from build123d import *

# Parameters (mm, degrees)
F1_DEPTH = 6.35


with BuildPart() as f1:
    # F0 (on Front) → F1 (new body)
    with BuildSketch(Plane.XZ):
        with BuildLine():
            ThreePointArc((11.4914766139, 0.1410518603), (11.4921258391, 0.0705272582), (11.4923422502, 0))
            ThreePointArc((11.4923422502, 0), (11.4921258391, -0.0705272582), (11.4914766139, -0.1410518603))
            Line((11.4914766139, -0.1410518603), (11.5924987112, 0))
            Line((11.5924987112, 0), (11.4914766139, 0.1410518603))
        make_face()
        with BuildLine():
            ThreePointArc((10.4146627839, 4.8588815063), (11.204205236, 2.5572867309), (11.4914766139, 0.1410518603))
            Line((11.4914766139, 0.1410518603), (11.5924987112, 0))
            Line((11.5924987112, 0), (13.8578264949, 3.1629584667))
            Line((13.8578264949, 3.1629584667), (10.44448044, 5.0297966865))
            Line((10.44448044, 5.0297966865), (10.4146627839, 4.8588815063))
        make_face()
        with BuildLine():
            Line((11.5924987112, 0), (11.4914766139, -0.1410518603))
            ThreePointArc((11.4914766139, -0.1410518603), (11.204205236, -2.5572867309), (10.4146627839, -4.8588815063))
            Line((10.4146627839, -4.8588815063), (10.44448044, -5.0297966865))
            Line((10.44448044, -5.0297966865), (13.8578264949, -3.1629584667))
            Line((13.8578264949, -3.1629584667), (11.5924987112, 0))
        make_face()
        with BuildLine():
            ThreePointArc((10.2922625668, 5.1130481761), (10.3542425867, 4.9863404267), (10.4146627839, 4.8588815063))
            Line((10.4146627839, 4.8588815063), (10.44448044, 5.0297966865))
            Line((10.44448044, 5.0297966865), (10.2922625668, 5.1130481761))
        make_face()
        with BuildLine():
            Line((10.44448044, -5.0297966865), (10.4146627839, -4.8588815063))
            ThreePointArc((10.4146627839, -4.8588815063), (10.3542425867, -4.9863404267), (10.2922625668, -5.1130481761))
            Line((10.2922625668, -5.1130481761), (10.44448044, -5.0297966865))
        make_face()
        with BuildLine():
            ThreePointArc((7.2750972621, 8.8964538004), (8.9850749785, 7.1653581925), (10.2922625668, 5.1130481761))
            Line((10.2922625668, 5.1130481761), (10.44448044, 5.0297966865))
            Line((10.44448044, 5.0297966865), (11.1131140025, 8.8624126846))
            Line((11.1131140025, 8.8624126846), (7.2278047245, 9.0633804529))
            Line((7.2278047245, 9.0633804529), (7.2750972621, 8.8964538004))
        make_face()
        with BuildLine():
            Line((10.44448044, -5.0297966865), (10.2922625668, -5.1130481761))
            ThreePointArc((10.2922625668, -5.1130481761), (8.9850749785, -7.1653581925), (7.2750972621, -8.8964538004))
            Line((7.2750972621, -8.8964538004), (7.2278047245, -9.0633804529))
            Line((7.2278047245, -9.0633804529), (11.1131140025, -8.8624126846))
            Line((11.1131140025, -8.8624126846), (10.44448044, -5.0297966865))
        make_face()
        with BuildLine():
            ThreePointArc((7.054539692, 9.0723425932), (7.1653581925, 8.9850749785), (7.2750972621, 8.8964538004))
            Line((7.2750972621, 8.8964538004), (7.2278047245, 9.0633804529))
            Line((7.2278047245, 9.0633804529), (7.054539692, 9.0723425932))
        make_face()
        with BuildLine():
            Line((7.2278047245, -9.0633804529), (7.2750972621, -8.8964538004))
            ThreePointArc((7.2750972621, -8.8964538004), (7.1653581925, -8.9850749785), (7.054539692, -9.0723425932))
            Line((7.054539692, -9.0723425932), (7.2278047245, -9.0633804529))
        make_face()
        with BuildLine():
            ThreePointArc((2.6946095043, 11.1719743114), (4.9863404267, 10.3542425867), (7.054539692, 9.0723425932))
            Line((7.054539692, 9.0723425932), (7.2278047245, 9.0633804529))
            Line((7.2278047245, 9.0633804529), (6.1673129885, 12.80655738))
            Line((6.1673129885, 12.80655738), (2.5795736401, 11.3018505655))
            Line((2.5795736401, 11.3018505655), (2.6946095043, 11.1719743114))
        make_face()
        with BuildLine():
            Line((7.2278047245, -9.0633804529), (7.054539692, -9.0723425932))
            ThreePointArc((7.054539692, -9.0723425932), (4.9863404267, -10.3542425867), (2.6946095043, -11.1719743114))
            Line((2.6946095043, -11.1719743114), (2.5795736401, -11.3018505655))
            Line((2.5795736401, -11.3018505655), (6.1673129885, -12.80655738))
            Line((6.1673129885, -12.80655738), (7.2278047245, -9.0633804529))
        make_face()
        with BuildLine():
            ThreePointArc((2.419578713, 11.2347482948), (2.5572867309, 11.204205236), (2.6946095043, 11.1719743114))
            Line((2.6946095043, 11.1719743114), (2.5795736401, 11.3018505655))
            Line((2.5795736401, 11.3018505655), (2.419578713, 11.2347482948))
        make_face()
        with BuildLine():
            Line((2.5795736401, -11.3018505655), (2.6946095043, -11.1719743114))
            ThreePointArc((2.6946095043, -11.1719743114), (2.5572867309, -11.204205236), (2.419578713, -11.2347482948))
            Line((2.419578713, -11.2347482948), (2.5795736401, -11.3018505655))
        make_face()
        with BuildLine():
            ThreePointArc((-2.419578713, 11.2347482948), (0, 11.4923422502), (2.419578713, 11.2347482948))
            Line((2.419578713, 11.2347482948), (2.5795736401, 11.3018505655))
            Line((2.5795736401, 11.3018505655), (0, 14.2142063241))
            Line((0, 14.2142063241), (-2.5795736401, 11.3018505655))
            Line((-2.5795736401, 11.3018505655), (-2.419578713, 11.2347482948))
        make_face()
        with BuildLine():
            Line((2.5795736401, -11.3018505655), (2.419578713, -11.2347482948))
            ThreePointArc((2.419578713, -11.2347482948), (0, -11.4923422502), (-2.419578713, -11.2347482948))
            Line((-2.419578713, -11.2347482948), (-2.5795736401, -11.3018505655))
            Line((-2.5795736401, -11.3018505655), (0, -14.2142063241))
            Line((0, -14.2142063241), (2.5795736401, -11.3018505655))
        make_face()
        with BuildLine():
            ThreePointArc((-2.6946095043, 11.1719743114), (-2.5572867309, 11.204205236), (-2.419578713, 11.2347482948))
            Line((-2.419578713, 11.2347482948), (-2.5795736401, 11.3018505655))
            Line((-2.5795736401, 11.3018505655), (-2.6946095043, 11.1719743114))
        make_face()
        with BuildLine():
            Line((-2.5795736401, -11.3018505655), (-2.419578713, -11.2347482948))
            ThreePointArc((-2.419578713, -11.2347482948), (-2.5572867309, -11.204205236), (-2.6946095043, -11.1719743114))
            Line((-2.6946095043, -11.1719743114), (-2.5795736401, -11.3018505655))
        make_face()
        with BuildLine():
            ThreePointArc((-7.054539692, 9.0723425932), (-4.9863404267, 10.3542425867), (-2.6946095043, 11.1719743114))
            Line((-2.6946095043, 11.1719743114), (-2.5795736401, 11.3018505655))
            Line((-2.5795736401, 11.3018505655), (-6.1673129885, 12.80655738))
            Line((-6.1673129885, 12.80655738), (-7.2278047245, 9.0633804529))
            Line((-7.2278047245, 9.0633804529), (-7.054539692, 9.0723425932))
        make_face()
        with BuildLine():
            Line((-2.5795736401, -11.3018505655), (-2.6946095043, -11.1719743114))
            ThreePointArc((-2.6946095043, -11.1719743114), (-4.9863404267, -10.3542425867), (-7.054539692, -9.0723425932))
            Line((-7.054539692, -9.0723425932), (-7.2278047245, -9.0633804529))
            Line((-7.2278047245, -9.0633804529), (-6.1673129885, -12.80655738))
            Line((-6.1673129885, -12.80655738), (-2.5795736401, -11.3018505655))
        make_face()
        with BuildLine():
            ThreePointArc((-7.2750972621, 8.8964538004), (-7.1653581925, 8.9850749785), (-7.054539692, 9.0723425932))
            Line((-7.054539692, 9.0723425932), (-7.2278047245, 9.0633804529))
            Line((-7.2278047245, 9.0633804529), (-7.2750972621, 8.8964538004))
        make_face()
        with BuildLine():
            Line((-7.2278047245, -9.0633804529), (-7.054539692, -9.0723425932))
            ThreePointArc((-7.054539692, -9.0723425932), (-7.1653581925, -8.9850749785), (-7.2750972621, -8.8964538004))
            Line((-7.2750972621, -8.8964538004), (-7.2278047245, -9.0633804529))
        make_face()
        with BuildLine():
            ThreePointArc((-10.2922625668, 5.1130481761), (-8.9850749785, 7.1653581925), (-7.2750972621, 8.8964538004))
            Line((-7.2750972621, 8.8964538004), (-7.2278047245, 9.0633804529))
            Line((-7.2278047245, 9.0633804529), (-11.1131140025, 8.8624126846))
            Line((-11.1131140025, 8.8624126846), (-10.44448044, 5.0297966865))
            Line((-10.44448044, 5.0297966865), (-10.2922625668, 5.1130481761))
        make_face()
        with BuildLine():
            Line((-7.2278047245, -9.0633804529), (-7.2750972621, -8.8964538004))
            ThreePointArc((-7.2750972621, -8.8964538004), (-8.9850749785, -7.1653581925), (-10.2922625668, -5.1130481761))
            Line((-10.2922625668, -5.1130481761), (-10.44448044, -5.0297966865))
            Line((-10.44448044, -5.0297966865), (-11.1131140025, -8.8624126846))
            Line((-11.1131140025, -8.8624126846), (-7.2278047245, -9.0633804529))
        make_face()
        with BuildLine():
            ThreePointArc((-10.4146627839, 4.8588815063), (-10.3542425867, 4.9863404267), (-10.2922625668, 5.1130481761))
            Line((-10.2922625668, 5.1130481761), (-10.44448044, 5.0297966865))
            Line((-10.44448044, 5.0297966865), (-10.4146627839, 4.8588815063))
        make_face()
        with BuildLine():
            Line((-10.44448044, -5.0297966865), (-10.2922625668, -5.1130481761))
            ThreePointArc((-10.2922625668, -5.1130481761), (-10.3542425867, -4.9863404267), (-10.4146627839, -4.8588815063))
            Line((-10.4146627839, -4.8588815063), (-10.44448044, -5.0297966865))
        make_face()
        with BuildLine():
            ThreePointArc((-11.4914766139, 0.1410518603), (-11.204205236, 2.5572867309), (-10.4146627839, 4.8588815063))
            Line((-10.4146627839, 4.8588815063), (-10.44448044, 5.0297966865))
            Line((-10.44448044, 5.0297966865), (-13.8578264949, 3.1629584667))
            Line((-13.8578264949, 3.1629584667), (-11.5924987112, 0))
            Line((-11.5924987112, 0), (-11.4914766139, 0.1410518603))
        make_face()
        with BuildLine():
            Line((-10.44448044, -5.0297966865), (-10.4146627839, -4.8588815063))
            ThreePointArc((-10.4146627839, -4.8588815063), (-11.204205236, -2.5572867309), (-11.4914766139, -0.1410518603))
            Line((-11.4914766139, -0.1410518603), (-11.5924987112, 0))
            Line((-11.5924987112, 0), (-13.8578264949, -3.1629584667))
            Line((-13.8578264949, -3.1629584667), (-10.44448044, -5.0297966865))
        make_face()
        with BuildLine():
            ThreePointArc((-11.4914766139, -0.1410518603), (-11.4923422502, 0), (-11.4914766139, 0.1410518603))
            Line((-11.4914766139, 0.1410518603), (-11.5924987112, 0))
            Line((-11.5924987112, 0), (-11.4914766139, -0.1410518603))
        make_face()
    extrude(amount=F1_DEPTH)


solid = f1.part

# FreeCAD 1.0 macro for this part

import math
import FreeCAD as App
import Part
import Sketcher

V = App.Vector
Q = App.Units.Quantity


def add_polygon(sketch, points):
    """Adds a closed chain of lines whose ends are joined by coincident constraints."""
    first, n = sketch.GeometryCount, len(points)
    for a, b in zip(points, points[1:] + points[:1]):
        sketch.addGeometry(Part.LineSegment(App.Vector(*a, 0), App.Vector(*b, 0)), False)
    for i in range(n):
        sketch.addConstraint(Sketcher.Constraint("Coincident", first + i, 2, first + (i + 1) % n, 1))

doc = App.newDocument("Part")
body = doc.addObject("PartDesign::Body", "Body")

# Sketch on XZ plane
sketch1 = doc.addObject("Sketcher::SketchObject", "Sketch")
body.addObject(sketch1)
sketch1.AttachmentSupport = (doc.XZ_Plane, [""])
sketch1.MapMode = "FlatFace"
add_polygon(sketch1, [(-13.86, 3.16), (-11.59, 0), (-13.86, -3.16), (-10.44, -5.03), (-11.11, -8.86), (-7.23, -9.06), (-6.17, -12.81), (-2.58, -11.3), (0, -14.21), (2.58, -11.3), (6.17, -12.81), (7.23, -9.06), (11.11, -8.86), (10.44, -5.03), (13.86, -3.16), (11.59, 0), (13.86, 3.16), (10.44, 5.03), (11.11, 8.86), (7.23, 9.06), (6.17, 12.81), (2.58, 11.3), (0, 14.21), (-2.58, 11.3), (-6.17, 12.81), (-7.23, 9.06), (-11.11, 8.86), (-10.44, 5.03)])  # lines 0-27
sketch1.addGeometry(Part.ArcOfCircle(Part.Circle(V(0, 0, 0), V(0, 0, 1), 11.49), math.radians(-179), math.radians(-155)), False)  # 28
sketch1.addGeometry(Part.ArcOfCircle(Part.Circle(V(0, 0, 0), V(0, 0, 1), 11.49), math.radians(179.3), math.radians(180.7)), False)  # 29
sketch1.addGeometry(Part.ArcOfCircle(Part.Circle(V(0, 0, 0), V(0, 0, 1), 11.49), math.radians(155), math.radians(179)), False)  # 30
sketch1.addGeometry(Part.ArcOfCircle(Part.Circle(V(0, 0, 0), V(0, 0, 1), 11.49), math.radians(153.58), math.radians(154.99)), False)  # 31
sketch1.addGeometry(Part.ArcOfCircle(Part.Circle(V(0, 0, 0), V(0, 0, 1), 11.49), math.radians(129), math.radians(154)), False)  # 32
sketch1.addGeometry(Part.ArcOfCircle(Part.Circle(V(0, 0, 0), V(0, 0, 1), 11.49), math.radians(127.87), math.radians(129.27)), False)  # 33
sketch1.addGeometry(Part.ArcOfCircle(Part.Circle(V(0, 0, 0), V(0, 0, 1), 11.49), math.radians(104), math.radians(128)), False)  # 34
sketch1.addGeometry(Part.ArcOfCircle(Part.Circle(V(0, 0, 0), V(0, 0, 1), 11.49), math.radians(102.15), math.radians(103.56)), False)  # 35
sketch1.addGeometry(Part.ArcOfCircle(Part.Circle(V(0, 0, 0), V(0, 0, 1), 11.49), math.radians(78), math.radians(102)), False)  # 36
sketch1.addGeometry(Part.ArcOfCircle(Part.Circle(V(0, 0, 0), V(0, 0, 1), 11.49), math.radians(76.44), math.radians(77.85)), False)  # 37
sketch1.addGeometry(Part.ArcOfCircle(Part.Circle(V(0, 0, 0), V(0, 0, 1), 11.49), math.radians(52), math.radians(76)), False)  # 38
sketch1.addGeometry(Part.ArcOfCircle(Part.Circle(V(0, 0, 0), V(0, 0, 1), 11.49), math.radians(50.73), math.radians(52.13)), False)  # 39
sketch1.addGeometry(Part.ArcOfCircle(Part.Circle(V(0, 0, 0), V(0, 0, 1), 11.49), math.radians(26), math.radians(51)), False)  # 40
sketch1.addGeometry(Part.ArcOfCircle(Part.Circle(V(0, 0, 0), V(0, 0, 1), 11.49), math.radians(25.01), math.radians(26.42)), False)  # 41
sketch1.addGeometry(Part.ArcOfCircle(Part.Circle(V(0, 0, 0), V(0, 0, 1), 11.49), math.radians(1), math.radians(25)), False)  # 42
sketch1.addGeometry(Part.ArcOfCircle(Part.Circle(V(0, 0, 0), V(0, 0, 1), 11.49), math.radians(0), math.radians(0.7)), False)  # 43
sketch1.addGeometry(Part.ArcOfCircle(Part.Circle(V(0, 0, 0), V(0, 0, 1), 11.49), math.radians(-0.7), math.radians(0)), False)  # 44
sketch1.addGeometry(Part.ArcOfCircle(Part.Circle(V(0, 0, 0), V(0, 0, 1), 11.49), math.radians(-25), math.radians(-1)), False)  # 45
sketch1.addGeometry(Part.ArcOfCircle(Part.Circle(V(0, 0, 0), V(0, 0, 1), 11.49), math.radians(-26.42), math.radians(-25.01)), False)  # 46
sketch1.addGeometry(Part.ArcOfCircle(Part.Circle(V(0, 0, 0), V(0, 0, 1), 11.49), math.radians(-51), math.radians(-26)), False)  # 47
sketch1.addGeometry(Part.ArcOfCircle(Part.Circle(V(0, 0, 0), V(0, 0, 1), 11.49), math.radians(-52.13), math.radians(-50.73)), False)  # 48
sketch1.addGeometry(Part.ArcOfCircle(Part.Circle(V(0, 0, 0), V(0, 0, 1), 11.49), math.radians(-76), math.radians(-52)), False)  # 49
sketch1.addGeometry(Part.ArcOfCircle(Part.Circle(V(0, 0, 0), V(0, 0, 1), 11.49), math.radians(-77.85), math.radians(-76.44)), False)  # 50
sketch1.addGeometry(Part.ArcOfCircle(Part.Circle(V(0, 0, 0), V(0, 0, 1), 11.49), math.radians(-102), math.radians(-78)), False)  # 51
sketch1.addGeometry(Part.ArcOfCircle(Part.Circle(V(0, 0, 0), V(0, 0, 1), 11.49), math.radians(-103.56), math.radians(-102.15)), False)  # 52
sketch1.addGeometry(Part.ArcOfCircle(Part.Circle(V(0, 0, 0), V(0, 0, 1), 11.49), math.radians(-128), math.radians(-104)), False)  # 53
sketch1.addGeometry(Part.ArcOfCircle(Part.Circle(V(0, 0, 0), V(0, 0, 1), 11.49), math.radians(-129.27), math.radians(-127.87)), False)  # 54
sketch1.addGeometry(Part.ArcOfCircle(Part.Circle(V(0, 0, 0), V(0, 0, 1), 11.49), math.radians(-154), math.radians(-129)), False)  # 55
sketch1.addGeometry(Part.ArcOfCircle(Part.Circle(V(0, 0, 0), V(0, 0, 1), 11.49), math.radians(-154.99), math.radians(-153.58)), False)  # 56
sketch1.addConstraint(Sketcher.Constraint("Tangent", 28, 1, 29, 2))
sketch1.addConstraint(Sketcher.Constraint("Tangent", 29, 1, 30, 2))
sketch1.addConstraint(Sketcher.Constraint("Tangent", 30, 1, 31, 2))
sketch1.addConstraint(Sketcher.Constraint("Tangent", 31, 1, 32, 2))
sketch1.addConstraint(Sketcher.Constraint("Tangent", 32, 1, 33, 2))
sketch1.addConstraint(Sketcher.Constraint("Tangent", 33, 1, 34, 2))
sketch1.addConstraint(Sketcher.Constraint("Tangent", 34, 1, 35, 2))
sketch1.addConstraint(Sketcher.Constraint("Tangent", 35, 1, 36, 2))
sketch1.addConstraint(Sketcher.Constraint("Tangent", 36, 1, 37, 2))
sketch1.addConstraint(Sketcher.Constraint("Tangent", 37, 1, 38, 2))
sketch1.addConstraint(Sketcher.Constraint("Tangent", 38, 1, 39, 2))
sketch1.addConstraint(Sketcher.Constraint("Tangent", 39, 1, 40, 2))
sketch1.addConstraint(Sketcher.Constraint("Tangent", 40, 1, 41, 2))
sketch1.addConstraint(Sketcher.Constraint("Tangent", 41, 1, 42, 2))
sketch1.addConstraint(Sketcher.Constraint("Tangent", 42, 1, 43, 2))
sketch1.addConstraint(Sketcher.Constraint("Tangent", 43, 1, 44, 2))
sketch1.addConstraint(Sketcher.Constraint("Tangent", 44, 1, 45, 2))
sketch1.addConstraint(Sketcher.Constraint("Tangent", 45, 1, 46, 2))
sketch1.addConstraint(Sketcher.Constraint("Tangent", 46, 1, 47, 2))
sketch1.addConstraint(Sketcher.Constraint("Tangent", 47, 1, 48, 2))
sketch1.addConstraint(Sketcher.Constraint("Tangent", 48, 1, 49, 2))
sketch1.addConstraint(Sketcher.Constraint("Tangent", 49, 1, 50, 2))
sketch1.addConstraint(Sketcher.Constraint("Tangent", 50, 1, 51, 2))
sketch1.addConstraint(Sketcher.Constraint("Tangent", 51, 1, 52, 2))
sketch1.addConstraint(Sketcher.Constraint("Tangent", 52, 1, 53, 2))
sketch1.addConstraint(Sketcher.Constraint("Tangent", 53, 1, 54, 2))
sketch1.addConstraint(Sketcher.Constraint("Tangent", 54, 1, 55, 2))
sketch1.addConstraint(Sketcher.Constraint("Tangent", 55, 1, 56, 2))
sketch1.addConstraint(Sketcher.Constraint("Tangent", 56, 1, 28, 2))
sketch1.addConstraint(Sketcher.Constraint("Coincident", 28, 3, -1, 1))
sketch1.addConstraint(Sketcher.Constraint("Coincident", 30, 3, -1, 1))
sketch1.addConstraint(Sketcher.Constraint("Coincident", 32, 3, -1, 1))
sketch1.addConstraint(Sketcher.Constraint("Coincident", 34, 3, -1, 1))
sketch1.addConstraint(Sketcher.Constraint("Coincident", 36, 3, -1, 1))
sketch1.addConstraint(Sketcher.Constraint("Coincident", 38, 3, -1, 1))
sketch1.addConstraint(Sketcher.Constraint("Coincident", 40, 3, -1, 1))
sketch1.addConstraint(Sketcher.Constraint("Coincident", 42, 3, -1, 1))
sketch1.addConstraint(Sketcher.Constraint("Coincident", 44, 3, -1, 1))
sketch1.addConstraint(Sketcher.Constraint("Coincident", 46, 3, -1, 1))
sketch1.addConstraint(Sketcher.Constraint("Coincident", 48, 3, -1, 1))
sketch1.addConstraint(Sketcher.Constraint("Coincident", 50, 3, -1, 1))
sketch1.addConstraint(Sketcher.Constraint("Coincident", 52, 3, -1, 1))
sketch1.addConstraint(Sketcher.Constraint("Coincident", 54, 3, -1, 1))
sketch1.addConstraint(Sketcher.Constraint("Symmetric", 0, 2, 14, 2, -1, 1))
sketch1.addConstraint(Sketcher.Constraint("Symmetric", 1, 2, 15, 2, -1, 1))
sketch1.addConstraint(Sketcher.Constraint("Symmetric", 2, 2, 16, 2, -1, 1))
sketch1.addConstraint(Sketcher.Constraint("Symmetric", 3, 2, 17, 2, -1, 1))
sketch1.addConstraint(Sketcher.Constraint("Symmetric", 4, 2, 18, 2, -1, 1))
sketch1.addConstraint(Sketcher.Constraint("Symmetric", 5, 2, 19, 2, -1, 1))
sketch1.addConstraint(Sketcher.Constraint("Symmetric", 6, 2, 20, 2, -1, 1))
sketch1.addConstraint(Sketcher.Constraint("Symmetric", 7, 2, 21, 2, -1, 1))
sketch1.addConstraint(Sketcher.Constraint("Symmetric", 8, 2, 22, 2, -1, 1))
sketch1.addConstraint(Sketcher.Constraint("Symmetric", 9, 2, 23, 2, -1, 1))
sketch1.addConstraint(Sketcher.Constraint("Symmetric", 10, 2, 24, 2, -1, 1))
sketch1.addConstraint(Sketcher.Constraint("Symmetric", 11, 2, 25, 2, -1, 1))
sketch1.addConstraint(Sketcher.Constraint("Symmetric", 12, 2, 26, 2, -1, 1))
sketch1.addConstraint(Sketcher.Constraint("Symmetric", 13, 2, 27, 2, -1, 1))
sketch1.addConstraint(Sketcher.Constraint("Symmetric", 6, 2, 8, 2, -2))
sketch1.addConstraint(Sketcher.Constraint("Symmetric", 5, 2, 9, 2, -2))
sketch1.addConstraint(Sketcher.Constraint("Symmetric", 4, 2, 10, 2, -2))
sketch1.addConstraint(Sketcher.Constraint("Symmetric", 3, 2, 11, 2, -2))
sketch1.addConstraint(Sketcher.Constraint("Symmetric", 2, 2, 12, 2, -2))
sketch1.addConstraint(Sketcher.Constraint("Symmetric", 1, 2, 13, 2, -2))
sketch1.addConstraint(Sketcher.Constraint("PointOnObject", 0, 2, -1))
sketch1.addConstraint(Sketcher.Constraint("PointOnObject", 7, 2, -2))
sketch1.addConstraint(Sketcher.Constraint("PointOnObject", 43, 1, -1))
sketch1.addConstraint(Sketcher.Constraint("Horizontal", 35, 1, 36, 1))
sketch1.addConstraint(Sketcher.Constraint("Horizontal", 34, 1, 37, 1))
sketch1.addConstraint(Sketcher.Constraint("Horizontal", 33, 1, 38, 1))
sketch1.addConstraint(Sketcher.Constraint("Horizontal", 32, 1, 39, 1))
sketch1.addConstraint(Sketcher.Constraint("Horizontal", 31, 1, 40, 1))
sketch1.addConstraint(Sketcher.Constraint("Horizontal", 30, 1, 41, 1))
sketch1.addConstraint(Sketcher.Constraint("Horizontal", 29, 1, 42, 1))
sketch1.addConstraint(Sketcher.Constraint("Horizontal", 28, 1, 44, 1))
sketch1.addConstraint(Sketcher.Constraint("Horizontal", 50, 1, 51, 1))
sketch1.addConstraint(Sketcher.Constraint("Horizontal", 49, 1, 52, 1))
sketch1.addConstraint(Sketcher.Constraint("Horizontal", 48, 1, 53, 1))
sketch1.addConstraint(Sketcher.Constraint("Horizontal", 47, 1, 54, 1))
sketch1.addConstraint(Sketcher.Constraint("Horizontal", 46, 1, 55, 1))
sketch1.addConstraint(Sketcher.Constraint("Horizontal", 45, 1, 56, 1))
sketch1.addConstraint(Sketcher.Constraint("Vertical", 28, 1, 29, 1))
sketch1.addConstraint(Sketcher.Constraint("Vertical", 41, 1, 45, 1))
sketch1.addConstraint(Sketcher.Constraint("Vertical", 40, 1, 46, 1))
sketch1.addConstraint(Sketcher.Constraint("Vertical", 39, 1, 47, 1))
sketch1.addConstraint(Sketcher.Constraint("Vertical", 38, 1, 48, 1))
sketch1.addConstraint(Sketcher.Constraint("Vertical", 37, 1, 49, 1))
sketch1.addConstraint(Sketcher.Constraint("Vertical", 36, 1, 50, 1))
sketch1.addConstraint(Sketcher.Constraint("Equal", 1, 2))
sketch1.addConstraint(Sketcher.Constraint("Equal", 2, 3))
sketch1.addConstraint(Sketcher.Constraint("Equal", 3, 4))
sketch1.addConstraint(Sketcher.Constraint("Equal", 4, 5))
sketch1.addConstraint(Sketcher.Constraint("Equal", 5, 6))
sketch1.addConstraint(Sketcher.Constraint("Equal", 6, 7))
sketch1.addConstraint(Sketcher.Constraint("Radius", 29, 11.492342))
sketch1.addConstraint(Sketcher.Constraint("DistanceX", 2, 2, -1, 1, Q("0.4112 in")))
sketch1.addConstraint(Sketcher.Constraint("DistanceX", 0, 2, -1, 1, 11.592499))
sketch1.addConstraint(Sketcher.Constraint("DistanceY", 1, 2, -1, 1, 3.162958))
sketch1.addConstraint(Sketcher.Constraint("DistanceY", 4, 2, -1, 1, 9.06338))
sketch1.addConstraint(Sketcher.Constraint("DistanceY", 6, 2, -1, 1, 11.301851))
sketch1.addConstraint(Sketcher.Constraint("DistanceY", 28, 1, -1, 1, 0.141052))
sketch1.addConstraint(Sketcher.Constraint("DistanceY", -1, 1, 30, 1, 4.858882))
sketch1.addConstraint(Sketcher.Constraint("DistanceY", -1, 1, 31, 1, 5.113048))
sketch1.addConstraint(Sketcher.Constraint("DistanceX", 33, 1, -1, 1, 7.05454))
sketch1.addConstraint(Sketcher.Constraint("DistanceX", 34, 1, -1, 1, 2.69461))
sketch1.addConstraint(Sketcher.Constraint("DistanceX", 35, 1, -1, 1, 2.419579))
sketch1.addConstraint(Sketcher.Constraint("Distance", 0, 3.890503))
sketch1.addConstraint(Sketcher.Constraint("DistanceX", 3, 2, -1, 1, 11.113114))
sketch1.addConstraint(Sketcher.Constraint("DistanceX", 5, 2, -1, 1, 6.167313))
sketch1.addConstraint(Sketcher.Constraint("DistanceX", 32, 1, -1, 1, 7.275097))
pad1 = doc.addObject("PartDesign::Pad", "Pad")
body.addObject(pad1)
pad1.Profile = sketch1
pad1.Length = Q("0.25 in")

doc.recompute()
